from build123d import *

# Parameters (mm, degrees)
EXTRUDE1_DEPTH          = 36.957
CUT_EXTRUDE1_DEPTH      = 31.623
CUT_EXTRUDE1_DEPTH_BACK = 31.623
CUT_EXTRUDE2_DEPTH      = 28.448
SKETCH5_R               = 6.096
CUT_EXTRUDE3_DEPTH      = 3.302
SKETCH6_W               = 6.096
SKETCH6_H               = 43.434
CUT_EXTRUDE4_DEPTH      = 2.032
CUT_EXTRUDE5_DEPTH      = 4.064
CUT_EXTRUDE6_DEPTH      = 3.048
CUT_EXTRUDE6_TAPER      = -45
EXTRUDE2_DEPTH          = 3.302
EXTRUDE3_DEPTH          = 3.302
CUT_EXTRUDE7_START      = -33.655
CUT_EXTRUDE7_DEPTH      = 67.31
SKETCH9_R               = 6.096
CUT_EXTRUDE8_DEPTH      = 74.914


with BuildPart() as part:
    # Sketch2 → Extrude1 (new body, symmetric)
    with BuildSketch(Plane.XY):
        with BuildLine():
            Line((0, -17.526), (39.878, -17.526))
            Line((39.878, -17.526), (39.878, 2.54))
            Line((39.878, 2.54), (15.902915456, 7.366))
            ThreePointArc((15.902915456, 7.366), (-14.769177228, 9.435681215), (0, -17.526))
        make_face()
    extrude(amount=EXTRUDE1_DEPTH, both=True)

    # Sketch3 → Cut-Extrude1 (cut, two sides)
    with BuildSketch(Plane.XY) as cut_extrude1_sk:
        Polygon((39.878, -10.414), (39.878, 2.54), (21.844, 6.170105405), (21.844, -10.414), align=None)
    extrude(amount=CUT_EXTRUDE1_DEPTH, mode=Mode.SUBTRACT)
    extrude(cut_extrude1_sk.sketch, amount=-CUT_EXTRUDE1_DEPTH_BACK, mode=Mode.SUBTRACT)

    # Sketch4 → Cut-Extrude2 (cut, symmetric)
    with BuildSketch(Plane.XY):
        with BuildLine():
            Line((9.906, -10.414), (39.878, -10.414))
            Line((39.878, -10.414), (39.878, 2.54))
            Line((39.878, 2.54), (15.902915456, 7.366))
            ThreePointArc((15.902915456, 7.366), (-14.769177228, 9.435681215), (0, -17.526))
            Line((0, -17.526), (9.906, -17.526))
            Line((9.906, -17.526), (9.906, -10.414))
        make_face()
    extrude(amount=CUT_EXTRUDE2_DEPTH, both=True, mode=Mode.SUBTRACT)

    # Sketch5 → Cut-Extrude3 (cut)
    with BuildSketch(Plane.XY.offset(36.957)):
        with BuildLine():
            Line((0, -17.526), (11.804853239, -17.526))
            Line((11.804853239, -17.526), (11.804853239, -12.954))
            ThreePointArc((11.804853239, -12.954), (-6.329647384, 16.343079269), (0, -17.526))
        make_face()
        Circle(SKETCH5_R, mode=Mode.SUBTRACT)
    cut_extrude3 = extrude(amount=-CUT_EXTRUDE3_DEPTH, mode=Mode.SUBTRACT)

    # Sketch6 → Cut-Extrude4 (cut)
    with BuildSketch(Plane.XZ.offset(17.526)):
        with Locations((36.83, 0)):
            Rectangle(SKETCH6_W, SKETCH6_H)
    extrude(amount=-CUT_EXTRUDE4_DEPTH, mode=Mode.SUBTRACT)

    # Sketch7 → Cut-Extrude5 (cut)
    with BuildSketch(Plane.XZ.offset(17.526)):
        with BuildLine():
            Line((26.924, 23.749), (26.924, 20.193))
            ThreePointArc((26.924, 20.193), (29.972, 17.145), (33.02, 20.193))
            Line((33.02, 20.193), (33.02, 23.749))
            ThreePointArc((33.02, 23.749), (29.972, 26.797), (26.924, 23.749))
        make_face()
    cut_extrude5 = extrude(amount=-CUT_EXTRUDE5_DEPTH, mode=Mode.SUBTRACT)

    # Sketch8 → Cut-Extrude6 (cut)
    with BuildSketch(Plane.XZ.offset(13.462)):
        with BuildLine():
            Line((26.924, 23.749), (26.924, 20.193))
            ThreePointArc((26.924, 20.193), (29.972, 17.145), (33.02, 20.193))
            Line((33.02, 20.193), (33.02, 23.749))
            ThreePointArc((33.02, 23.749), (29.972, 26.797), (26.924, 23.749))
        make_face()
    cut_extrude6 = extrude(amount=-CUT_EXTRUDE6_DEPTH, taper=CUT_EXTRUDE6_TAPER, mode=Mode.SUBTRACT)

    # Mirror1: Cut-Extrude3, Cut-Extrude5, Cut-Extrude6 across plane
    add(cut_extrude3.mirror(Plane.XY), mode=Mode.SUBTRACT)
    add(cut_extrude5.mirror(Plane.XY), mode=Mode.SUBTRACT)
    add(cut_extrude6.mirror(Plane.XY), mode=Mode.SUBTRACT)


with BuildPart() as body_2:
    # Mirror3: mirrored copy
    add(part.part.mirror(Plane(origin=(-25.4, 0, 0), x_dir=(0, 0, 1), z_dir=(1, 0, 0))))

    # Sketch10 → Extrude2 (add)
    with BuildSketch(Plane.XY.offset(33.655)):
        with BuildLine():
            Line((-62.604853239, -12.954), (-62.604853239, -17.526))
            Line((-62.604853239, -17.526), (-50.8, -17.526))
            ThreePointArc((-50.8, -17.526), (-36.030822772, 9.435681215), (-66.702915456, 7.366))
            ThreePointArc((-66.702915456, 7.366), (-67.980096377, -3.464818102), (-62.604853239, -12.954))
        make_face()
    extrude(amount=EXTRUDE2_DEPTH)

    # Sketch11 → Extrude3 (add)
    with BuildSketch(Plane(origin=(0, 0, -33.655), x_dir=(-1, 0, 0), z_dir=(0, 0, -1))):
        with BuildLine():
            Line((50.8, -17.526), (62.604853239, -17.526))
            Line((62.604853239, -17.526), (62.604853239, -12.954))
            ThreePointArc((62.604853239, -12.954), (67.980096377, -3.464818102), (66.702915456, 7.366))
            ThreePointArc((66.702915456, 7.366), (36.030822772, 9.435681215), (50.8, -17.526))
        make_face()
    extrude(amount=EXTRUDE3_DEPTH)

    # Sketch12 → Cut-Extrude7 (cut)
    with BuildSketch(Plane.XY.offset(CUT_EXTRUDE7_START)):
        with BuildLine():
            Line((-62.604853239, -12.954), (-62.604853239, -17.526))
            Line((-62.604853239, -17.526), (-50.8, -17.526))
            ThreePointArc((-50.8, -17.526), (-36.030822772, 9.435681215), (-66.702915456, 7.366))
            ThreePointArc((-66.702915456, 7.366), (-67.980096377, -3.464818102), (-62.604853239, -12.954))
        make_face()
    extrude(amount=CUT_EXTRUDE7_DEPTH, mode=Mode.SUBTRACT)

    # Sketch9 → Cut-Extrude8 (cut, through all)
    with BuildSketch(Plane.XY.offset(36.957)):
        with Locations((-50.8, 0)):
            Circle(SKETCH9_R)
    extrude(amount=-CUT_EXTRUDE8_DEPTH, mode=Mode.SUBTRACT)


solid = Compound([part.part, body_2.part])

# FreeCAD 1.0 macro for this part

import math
import FreeCAD as App
import Part
import Sketcher
Q = App.Units.Quantity

doc = App.newDocument("Part")
body = doc.addObject("PartDesign::Body", "Body")

# Sketch on XY plane
sketch1 = body.newObject("Sketcher::SketchObject", "Sketch")
sketch1.AttachmentSupport = (doc.getObject("XY_Plane"), [""])
sketch1.MapMode = "FlatFace"
sketch1.addGeometry(Part.LineSegment(App.Vector(0, -18, 0), App.Vector(40, -18, 0)), False)
sketch1.addGeometry(Part.LineSegment(App.Vector(40, -18, 0), App.Vector(40, 3, 0)), False)
sketch1.addGeometry(Part.LineSegment(App.Vector(40, 3, 0), App.Vector(16, 7, 0)), False)
sketch1.addGeometry(Part.ArcOfCircle(Part.Circle(App.Vector(0, 0, 0), App.Vector(0, 0, 1), 18), math.radians(25), math.radians(270)), False)
sketch1.addConstraint(Sketcher.Constraint("Coincident", 0, 2, 1, 1))
sketch1.addConstraint(Sketcher.Constraint("Coincident", 1, 2, 2, 1))
sketch1.addConstraint(Sketcher.Constraint("Coincident", 2, 2, 3, 1))
sketch1.addConstraint(Sketcher.Constraint("Tangent", 3, 2, 0, 1))
sketch1.addConstraint(Sketcher.Constraint("Horizontal", 0))
sketch1.addConstraint(Sketcher.Constraint("Vertical", 1))
sketch1.addConstraint(Sketcher.Constraint("Coincident", 3, 3, -1, 1))
sketch1.addConstraint(Sketcher.Constraint("Radius", 3, Q("0.69 in")))
sketch1.addConstraint(Sketcher.Constraint("DistanceX", 0, 1, 0, 2, Q("1.57 in")))
sketch1.addConstraint(Sketcher.Constraint("DistanceY", 1, 1, 1, 2, Q("0.79 in")))
sketch1.addConstraint(Sketcher.Constraint("DistanceY", -1, 1, 2, 2, Q("0.29 in")))
pad1 = body.newObject("PartDesign::Pad", "Pad")
pad1.Profile = sketch1
pad1.Length = Q("2.91 in")
pad1.Midplane = True

# Sketch on XY plane
sketch2 = body.newObject("Sketcher::SketchObject", "Sketch001")
sketch2.AttachmentSupport = (doc.getObject("XY_Plane"), [""])
sketch2.MapMode = "FlatFace"
sketch2.addGeometry(Part.LineSegment(App.Vector(40, -10, 0), App.Vector(40, 3, 0)), False)
sketch2.addGeometry(Part.LineSegment(App.Vector(40, 3, 0), App.Vector(22, 6, 0)), False)
sketch2.addGeometry(Part.LineSegment(App.Vector(22, 6, 0), App.Vector(22, -10, 0)), False)
sketch2.addGeometry(Part.LineSegment(App.Vector(22, -10, 0), App.Vector(40, -10, 0)), False)
sketch2.addConstraint(Sketcher.Constraint("Coincident", 0, 2, 1, 1))
sketch2.addConstraint(Sketcher.Constraint("Coincident", 1, 2, 2, 1))
sketch2.addConstraint(Sketcher.Constraint("Coincident", 2, 2, 3, 1))
sketch2.addConstraint(Sketcher.Constraint("Coincident", 3, 2, 0, 1))
sketch2.addConstraint(Sketcher.Constraint("Vertical", 0))
sketch2.addConstraint(Sketcher.Constraint("Vertical", 2))
sketch2.addConstraint(Sketcher.Constraint("Horizontal", 3))
sketch2.addConstraint(Sketcher.Constraint("DistanceX", 3, 1, 3, 2, Q("0.71 in")))
sketch2.addConstraint(Sketcher.Constraint("DistanceY", 0, 1, 0, 2, Q("0.51 in")))
sketch2.addConstraint(Sketcher.Constraint("DistanceY", -1, 1, 0, 2, Q("0.1 in")))
sketch2.addConstraint(Sketcher.Constraint("DistanceX", -1, 1, 0, 2, Q("1.57 in")))
sketch2.addConstraint(Sketcher.Constraint("Distance", 1, 18.395728))
pocket1 = body.newObject("PartDesign::Pocket", "Pocket")
pocket1.Profile = sketch2
pocket1.Type = "TwoLengths"
pocket1.Length = Q("1.245 in")
pocket1.Length2 = Q("1.245 in")
pocket1.Reversed = True

# Sketch on XY plane
sketch3 = body.newObject("Sketcher::SketchObject", "Sketch002")
sketch3.AttachmentSupport = (doc.getObject("XY_Plane"), [""])
sketch3.MapMode = "FlatFace"
sketch3.addGeometry(Part.LineSegment(App.Vector(10, -10, 0), App.Vector(40, -10, 0)), False)
sketch3.addGeometry(Part.LineSegment(App.Vector(40, -10, 0), App.Vector(40, 3, 0)), False)
sketch3.addGeometry(Part.LineSegment(App.Vector(40, 3, 0), App.Vector(16, 7, 0)), False)
sketch3.addGeometry(Part.ArcOfCircle(Part.Circle(App.Vector(0, 0, 0), App.Vector(0, 0, 1), 18), math.radians(25), math.radians(270)), False)
sketch3.addGeometry(Part.LineSegment(App.Vector(0, -18, 0), App.Vector(10, -18, 0)), False)
sketch3.addGeometry(Part.LineSegment(App.Vector(10, -18, 0), App.Vector(10, -10, 0)), False)
sketch3.addConstraint(Sketcher.Constraint("Coincident", 0, 2, 1, 1))
sketch3.addConstraint(Sketcher.Constraint("Coincident", 1, 2, 2, 1))
sketch3.addConstraint(Sketcher.Constraint("Coincident", 2, 2, 3, 1))
sketch3.addConstraint(Sketcher.Constraint("Tangent", 3, 2, 4, 1))
sketch3.addConstraint(Sketcher.Constraint("Coincident", 4, 2, 5, 1))
sketch3.addConstraint(Sketcher.Constraint("Coincident", 5, 2, 0, 1))
sketch3.addConstraint(Sketcher.Constraint("Horizontal", 0))
sketch3.addConstraint(Sketcher.Constraint("Vertical", 1))
sketch3.addConstraint(Sketcher.Constraint("Horizontal", 4))
sketch3.addConstraint(Sketcher.Constraint("Vertical", 5))
sketch3.addConstraint(Sketcher.Constraint("Coincident", 3, 3, -1, 1))
sketch3.addConstraint(Sketcher.Constraint("Radius", 3, Q("0.69 in")))
sketch3.addConstraint(Sketcher.Constraint("DistanceX", 0, 1, 0, 2, Q("1.18 in")))
sketch3.addConstraint(Sketcher.Constraint("DistanceX", 4, 1, 4, 2, Q("0.39 in")))
sketch3.addConstraint(Sketcher.Constraint("DistanceY", 1, 1, 1, 2, Q("0.51 in")))
sketch3.addConstraint(Sketcher.Constraint("DistanceY", 5, 1, 5, 2, Q("0.28 in")))
sketch3.addConstraint(Sketcher.Constraint("DistanceY", 0, 2, 2, 2, Q("0.7 in")))
pocket2 = body.newObject("PartDesign::Pocket", "Pocket001")
pocket2.Profile = sketch3
pocket2.Length = Q("2.24 in")
pocket2.Midplane = True

# Sketch on XY plane
sketch4 = body.newObject("Sketcher::SketchObject", "Sketch003")
sketch4.AttachmentSupport = (doc.getObject("XY_Plane"), [""])
sketch4.MapMode = "FlatFace"
sketch4.AttachmentOffset = App.Placement(App.Vector(0, 0, 1.455 * 25.4), App.Rotation())
sketch4.addGeometry(Part.LineSegment(App.Vector(0, -17.5, 0), App.Vector(11.8, -17.5, 0)), False)
sketch4.addGeometry(Part.LineSegment(App.Vector(11.8, -17.5, 0), App.Vector(11.8, -13, 0)), False)
sketch4.addGeometry(Part.ArcOfCircle(Part.Circle(App.Vector(0, 0, 0), App.Vector(0, 0, 1), 17.5), math.radians(-48), math.radians(270)), False)
sketch4.addGeometry(Part.Circle(App.Vector(0, 0, 0), App.Vector(0, 0, 1), 6.1), False)
sketch4.addConstraint(Sketcher.Constraint("Coincident", 0, 2, 1, 1))
sketch4.addConstraint(Sketcher.Constraint("Coincident", 1, 2, 2, 1))
sketch4.addConstraint(Sketcher.Constraint("Tangent", 2, 2, 0, 1))
sketch4.addConstraint(Sketcher.Constraint("Horizontal", 0))
sketch4.addConstraint(Sketcher.Constraint("Vertical", 1))
sketch4.addConstraint(Sketcher.Constraint("Coincident", 2, 3, -1, 1))
sketch4.addConstraint(Sketcher.Constraint("Coincident", 3, 3, -1, 1))
sketch4.addConstraint(Sketcher.Constraint("Diameter", 3, Q("0.48 in")))
sketch4.addConstraint(Sketcher.Constraint("Radius", 2, Q("0.69 in")))
sketch4.addConstraint(Sketcher.Constraint("DistanceY", 1, 1, 1, 2, Q("0.18 in")))
pocket3 = body.newObject("PartDesign::Pocket", "Pocket002")
pocket3.Profile = sketch4
pocket3.Length = Q("0.13 in")

# Sketch on XZ plane
sketch5 = body.newObject("Sketcher::SketchObject", "Sketch004")
sketch5.AttachmentSupport = (doc.getObject("XZ_Plane"), [""])
sketch5.MapMode = "FlatFace"
sketch5.AttachmentOffset = App.Placement(App.Vector(0, 0, 0.69 * 25.4), App.Rotation())
sketch5.addGeometry(Part.LineSegment(App.Vector(34, 22, 0), App.Vector(34, -22, 0)), False)
sketch5.addGeometry(Part.LineSegment(App.Vector(34, -22, 0), App.Vector(40, -22, 0)), False)
sketch5.addGeometry(Part.LineSegment(App.Vector(40, -22, 0), App.Vector(40, 22, 0)), False)
sketch5.addGeometry(Part.LineSegment(App.Vector(40, 22, 0), App.Vector(34, 22, 0)), False)
sketch5.addConstraint(Sketcher.Constraint("Coincident", 0, 2, 1, 1))
sketch5.addConstraint(Sketcher.Constraint("Coincident", 1, 2, 2, 1))
sketch5.addConstraint(Sketcher.Constraint("Coincident", 2, 2, 3, 1))
sketch5.addConstraint(Sketcher.Constraint("Coincident", 3, 2, 0, 1))
sketch5.addConstraint(Sketcher.Constraint("Vertical", 0))
sketch5.addConstraint(Sketcher.Constraint("Horizontal", 1))
sketch5.addConstraint(Sketcher.Constraint("Vertical", 2))
sketch5.addConstraint(Sketcher.Constraint("Horizontal", 3))
sketch5.addConstraint(Sketcher.Constraint("DistanceX", 1, 1, 1, 2, Q("0.24 in")))
sketch5.addConstraint(Sketcher.Constraint("DistanceY", 0, 2, 0, 1, Q("1.71 in")))
sketch5.addConstraint(Sketcher.Constraint("DistanceX", -1, 1, 0, 2, Q("1.33 in")))
sketch5.addConstraint(Sketcher.Constraint("DistanceY", 0, 2, -1, 1, Q("0.855 in")))
pocket4 = body.newObject("PartDesign::Pocket", "Pocket003")
pocket4.Profile = sketch5
pocket4.Length = Q("0.08 in")

# Sketch on XZ plane
sketch6 = body.newObject("Sketcher::SketchObject", "Sketch005")
sketch6.AttachmentSupport = (doc.getObject("XZ_Plane"), [""])
sketch6.MapMode = "FlatFace"
sketch6.AttachmentOffset = App.Placement(App.Vector(0, 0, 0.69 * 25.4), App.Rotation())
sketch6.addGeometry(Part.LineSegment(App.Vector(26.9, 23.7, 0), App.Vector(26.9, 20.2, 0)), False)
sketch6.addGeometry(Part.ArcOfCircle(Part.Circle(App.Vector(30, 20.2, 0), App.Vector(0, 0, 1), 3), math.radians(180), math.radians(360)), False)
sketch6.addGeometry(Part.LineSegment(App.Vector(33, 20.2, 0), App.Vector(33, 23.7, 0)), False)
sketch6.addGeometry(Part.ArcOfCircle(Part.Circle(App.Vector(30, 23.7, 0), App.Vector(0, 0, 1), 3), math.radians(0), math.radians(180)), False)
sketch6.addConstraint(Sketcher.Constraint("Tangent", 0, 2, 1, 1))
sketch6.addConstraint(Sketcher.Constraint("Tangent", 1, 2, 2, 1))
sketch6.addConstraint(Sketcher.Constraint("Tangent", 2, 2, 3, 1))
sketch6.addConstraint(Sketcher.Constraint("Tangent", 3, 2, 0, 1))
sketch6.addConstraint(Sketcher.Constraint("Vertical", 0))
sketch6.addConstraint(Sketcher.Constraint("Vertical", 2))
sketch6.addConstraint(Sketcher.Constraint("Radius", 1, Q("0.12 in")))
sketch6.addConstraint(Sketcher.Constraint("DistanceY", 0, 2, 0, 1, Q("0.14 in")))
sketch6.addConstraint(Sketcher.Constraint("DistanceX", -1, 1, 1, 2, Q("1.3 in")))
sketch6.addConstraint(Sketcher.Constraint("DistanceY", -1, 1, 1, 3, Q("0.795 in")))
pocket5 = body.newObject("PartDesign::Pocket", "Pocket004")
pocket5.Profile = sketch6
pocket5.Length = Q("0.16 in")

# Sketch on XZ plane
sketch7 = body.newObject("Sketcher::SketchObject", "Sketch006")
sketch7.AttachmentSupport = (doc.getObject("XZ_Plane"), [""])
sketch7.MapMode = "FlatFace"
sketch7.AttachmentOffset = App.Placement(App.Vector(0, 0, 0.53 * 25.4), App.Rotation())
sketch7.addGeometry(Part.LineSegment(App.Vector(26.9, 23.7, 0), App.Vector(26.9, 20.2, 0)), False)
sketch7.addGeometry(Part.ArcOfCircle(Part.Circle(App.Vector(30, 20.2, 0), App.Vector(0, 0, 1), 3), math.radians(180), math.radians(360)), False)
sketch7.addGeometry(Part.LineSegment(App.Vector(33, 20.2, 0), App.Vector(33, 23.7, 0)), False)
sketch7.addGeometry(Part.ArcOfCircle(Part.Circle(App.Vector(30, 23.7, 0), App.Vector(0, 0, 1), 3), math.radians(0), math.radians(180)), False)
sketch7.addConstraint(Sketcher.Constraint("Tangent", 0, 2, 1, 1))
sketch7.addConstraint(Sketcher.Constraint("Tangent", 1, 2, 2, 1))
sketch7.addConstraint(Sketcher.Constraint("Tangent", 2, 2, 3, 1))
sketch7.addConstraint(Sketcher.Constraint("Tangent", 3, 2, 0, 1))
sketch7.addConstraint(Sketcher.Constraint("Vertical", 0))
sketch7.addConstraint(Sketcher.Constraint("Vertical", 2))
sketch7.addConstraint(Sketcher.Constraint("Radius", 1, Q("0.12 in")))
sketch7.addConstraint(Sketcher.Constraint("DistanceY", 0, 2, 0, 1, Q("0.14 in")))
sketch7.addConstraint(Sketcher.Constraint("DistanceX", -1, 1, 1, 2, Q("1.3 in")))
sketch7.addConstraint(Sketcher.Constraint("DistanceY", -1, 1, 1, 3, Q("0.795 in")))
pocket6 = body.newObject("PartDesign::Pocket", "Pocket005")
pocket6.Profile = sketch7
pocket6.Length = Q("0.12 in")
pocket6.TaperAngle = 45
doc.recompute()

mirrored = body.newObject("PartDesign::Mirrored", "Mirrored")
mirrored.Originals = [pocket3, pocket5, pocket6]
mirrored.MirrorPlane = (doc.getObject("XY_Plane"), [""])
body.Tip = mirrored
body2 = doc.addObject("PartDesign::Body", "Body001")
doc.recompute()

mirroring = doc.addObject("Part::Mirroring", "Mirroring")
mirroring.Source = body
mirroring.Base = App.Vector(-25.4, 0, 0)
mirroring.Normal = App.Vector(1, 0, 0)
body2.BaseFeature = mirroring
doc.recompute()

# Sketch on XY plane
sketch8 = body2.newObject("Sketcher::SketchObject", "Sketch007")
sketch8.AttachmentSupport = (doc.getObject("XY_Plane001"), [""])
sketch8.MapMode = "FlatFace"
sketch8.AttachmentOffset = App.Placement(App.Vector(0, 0, 1.325 * 25.4), App.Rotation())
sketch8.addGeometry(Part.LineSegment(App.Vector(-62.6, -13, 0), App.Vector(-62.6, -17.5, 0)), False)
sketch8.addGeometry(Part.LineSegment(App.Vector(-62.6, -17.5, 0), App.Vector(-50.8, -17.5, 0)), False)
sketch8.addGeometry(Part.ArcOfCircle(Part.Circle(App.Vector(-50.8, 0, 0), App.Vector(0, 0, 1), 17.5), math.radians(-90), math.radians(155)), False)
sketch8.addGeometry(Part.ArcOfCircle(Part.Circle(App.Vector(-50.8, 0, 0), App.Vector(0, 0, 1), 17.5), math.radians(155), math.radians(228)), False)
sketch8.addConstraint(Sketcher.Constraint("Coincident", 0, 2, 1, 1))
sketch8.addConstraint(Sketcher.Constraint("Tangent", 1, 2, 2, 1))
sketch8.addConstraint(Sketcher.Constraint("Tangent", 2, 2, 3, 1))
sketch8.addConstraint(Sketcher.Constraint("Coincident", 3, 2, 0, 1))
sketch8.addConstraint(Sketcher.Constraint("Vertical", 0))
sketch8.addConstraint(Sketcher.Constraint("Horizontal", 1))
sketch8.addConstraint(Sketcher.Constraint("Equal", 2, 3))
sketch8.addConstraint(Sketcher.Constraint("PointOnObject", 2, 3, -1))
sketch8.addConstraint(Sketcher.Constraint("Radius", 2, Q("0.69 in")))
sketch8.addConstraint(Sketcher.Constraint("DistanceX", 2, 3, -1, 1, Q("2 in")))
sketch8.addConstraint(Sketcher.Constraint("DistanceY", 0, 2, 0, 1, Q("0.18 in")))
sketch8.addConstraint(Sketcher.Constraint("DistanceY", 3, 2, 2, 2, Q("0.8 in")))
pad2 = body2.newObject("PartDesign::Pad", "Pad001")
pad2.Profile = sketch8
pad2.Length = Q("0.13 in")

# Sketch on XY plane
sketch9 = body2.newObject("Sketcher::SketchObject", "Sketch008")
sketch9.AttachmentSupport = (doc.getObject("XY_Plane001"), [""])
sketch9.MapMode = "FlatFace"
sketch9.AttachmentOffset = App.Placement(App.Vector(0, 0, -1.325 * 25.4), App.Rotation())
sketch9.addGeometry(Part.LineSegment(App.Vector(-50.8, -17.5, 0), App.Vector(-62.6, -17.5, 0)), False)
sketch9.addGeometry(Part.LineSegment(App.Vector(-62.6, -17.5, 0), App.Vector(-62.6, -13, 0)), False)
sketch9.addGeometry(Part.ArcOfCircle(Part.Circle(App.Vector(-50.8, 0, 0), App.Vector(0, 0, 1), 17.5), math.radians(155), math.radians(228)), False)
sketch9.addGeometry(Part.ArcOfCircle(Part.Circle(App.Vector(-50.8, 0, 0), App.Vector(0, 0, 1), 17.5), math.radians(-90), math.radians(155)), False)
sketch9.addConstraint(Sketcher.Constraint("Coincident", 0, 2, 1, 1))
sketch9.addConstraint(Sketcher.Constraint("Coincident", 1, 2, 2, 2))
sketch9.addConstraint(Sketcher.Constraint("Tangent", 2, 1, 3, 2))
sketch9.addConstraint(Sketcher.Constraint("Tangent", 3, 1, 0, 1))
sketch9.addConstraint(Sketcher.Constraint("Horizontal", 0))
sketch9.addConstraint(Sketcher.Constraint("Vertical", 1))
sketch9.addConstraint(Sketcher.Constraint("Equal", 2, 3))
sketch9.addConstraint(Sketcher.Constraint("PointOnObject", 2, 3, -1))
sketch9.addConstraint(Sketcher.Constraint("Radius", 2, Q("0.69 in")))
sketch9.addConstraint(Sketcher.Constraint("DistanceX", 2, 3, -1, 1, Q("2 in")))
sketch9.addConstraint(Sketcher.Constraint("DistanceY", 1, 1, 1, 2, Q("0.18 in")))
sketch9.addConstraint(Sketcher.Constraint("DistanceY", 1, 2, 2, 1, Q("0.8 in")))
pad3 = body2.newObject("PartDesign::Pad", "Pad002")
pad3.Profile = sketch9
pad3.Length = Q("0.13 in")
pad3.Reversed = True

# Sketch on XY plane
sketch10 = body2.newObject("Sketcher::SketchObject", "Sketch009")
sketch10.AttachmentSupport = (doc.getObject("XY_Plane001"), [""])
sketch10.MapMode = "FlatFace"
sketch10.AttachmentOffset = App.Placement(App.Vector(0, 0, -1.325 * 25.4), App.Rotation())
sketch10.addGeometry(Part.LineSegment(App.Vector(-62.6, -13, 0), App.Vector(-62.6, -17.5, 0)), False)
sketch10.addGeometry(Part.LineSegment(App.Vector(-62.6, -17.5, 0), App.Vector(-50.8, -17.5, 0)), False)
sketch10.addGeometry(Part.ArcOfCircle(Part.Circle(App.Vector(-50.8, 0, 0), App.Vector(0, 0, 1), 17.5), math.radians(-90), math.radians(155)), False)
sketch10.addGeometry(Part.ArcOfCircle(Part.Circle(App.Vector(-50.8, 0, 0), App.Vector(0, 0, 1), 17.5), math.radians(155), math.radians(228)), False)
sketch10.addConstraint(Sketcher.Constraint("Coincident", 0, 2, 1, 1))
sketch10.addConstraint(Sketcher.Constraint("Tangent", 1, 2, 2, 1))
sketch10.addConstraint(Sketcher.Constraint("Tangent", 2, 2, 3, 1))
sketch10.addConstraint(Sketcher.Constraint("Coincident", 3, 2, 0, 1))
sketch10.addConstraint(Sketcher.Constraint("Vertical", 0))
sketch10.addConstraint(Sketcher.Constraint("Horizontal", 1))
sketch10.addConstraint(Sketcher.Constraint("Equal", 2, 3))
sketch10.addConstraint(Sketcher.Constraint("PointOnObject", 2, 3, -1))
sketch10.addConstraint(Sketcher.Constraint("Radius", 2, Q("0.69 in")))
sketch10.addConstraint(Sketcher.Constraint("DistanceX", 2, 3, -1, 1, Q("2 in")))
sketch10.addConstraint(Sketcher.Constraint("DistanceY", 0, 2, 0, 1, Q("0.18 in")))
sketch10.addConstraint(Sketcher.Constraint("DistanceY", 3, 2, 2, 2, Q("0.8 in")))
pocket7 = body2.newObject("PartDesign::Pocket", "Pocket006")
pocket7.Profile = sketch10
pocket7.Length = Q("2.65 in")
pocket7.Reversed = True

# Sketch on XY plane
sketch11 = body2.newObject("Sketcher::SketchObject", "Sketch010")
sketch11.AttachmentSupport = (doc.getObject("XY_Plane001"), [""])
sketch11.MapMode = "FlatFace"
sketch11.AttachmentOffset = App.Placement(App.Vector(0, 0, 1.455 * 25.4), App.Rotation())
sketch11.addGeometry(Part.Circle(App.Vector(-51, 0, 0), App.Vector(0, 0, 1), 6), False)
sketch11.addConstraint(Sketcher.Constraint("PointOnObject", 0, 3, -1))
sketch11.addConstraint(Sketcher.Constraint("Diameter", 0, Q("0.48 in")))
sketch11.addConstraint(Sketcher.Constraint("DistanceX", 0, 3, -1, 1, Q("2 in")))
pocket8 = body2.newObject("PartDesign::Pocket", "Pocket007")
pocket8.Profile = sketch11
pocket8.Type = "ThroughAll"
mirroring.Visibility = False

doc.recompute()
